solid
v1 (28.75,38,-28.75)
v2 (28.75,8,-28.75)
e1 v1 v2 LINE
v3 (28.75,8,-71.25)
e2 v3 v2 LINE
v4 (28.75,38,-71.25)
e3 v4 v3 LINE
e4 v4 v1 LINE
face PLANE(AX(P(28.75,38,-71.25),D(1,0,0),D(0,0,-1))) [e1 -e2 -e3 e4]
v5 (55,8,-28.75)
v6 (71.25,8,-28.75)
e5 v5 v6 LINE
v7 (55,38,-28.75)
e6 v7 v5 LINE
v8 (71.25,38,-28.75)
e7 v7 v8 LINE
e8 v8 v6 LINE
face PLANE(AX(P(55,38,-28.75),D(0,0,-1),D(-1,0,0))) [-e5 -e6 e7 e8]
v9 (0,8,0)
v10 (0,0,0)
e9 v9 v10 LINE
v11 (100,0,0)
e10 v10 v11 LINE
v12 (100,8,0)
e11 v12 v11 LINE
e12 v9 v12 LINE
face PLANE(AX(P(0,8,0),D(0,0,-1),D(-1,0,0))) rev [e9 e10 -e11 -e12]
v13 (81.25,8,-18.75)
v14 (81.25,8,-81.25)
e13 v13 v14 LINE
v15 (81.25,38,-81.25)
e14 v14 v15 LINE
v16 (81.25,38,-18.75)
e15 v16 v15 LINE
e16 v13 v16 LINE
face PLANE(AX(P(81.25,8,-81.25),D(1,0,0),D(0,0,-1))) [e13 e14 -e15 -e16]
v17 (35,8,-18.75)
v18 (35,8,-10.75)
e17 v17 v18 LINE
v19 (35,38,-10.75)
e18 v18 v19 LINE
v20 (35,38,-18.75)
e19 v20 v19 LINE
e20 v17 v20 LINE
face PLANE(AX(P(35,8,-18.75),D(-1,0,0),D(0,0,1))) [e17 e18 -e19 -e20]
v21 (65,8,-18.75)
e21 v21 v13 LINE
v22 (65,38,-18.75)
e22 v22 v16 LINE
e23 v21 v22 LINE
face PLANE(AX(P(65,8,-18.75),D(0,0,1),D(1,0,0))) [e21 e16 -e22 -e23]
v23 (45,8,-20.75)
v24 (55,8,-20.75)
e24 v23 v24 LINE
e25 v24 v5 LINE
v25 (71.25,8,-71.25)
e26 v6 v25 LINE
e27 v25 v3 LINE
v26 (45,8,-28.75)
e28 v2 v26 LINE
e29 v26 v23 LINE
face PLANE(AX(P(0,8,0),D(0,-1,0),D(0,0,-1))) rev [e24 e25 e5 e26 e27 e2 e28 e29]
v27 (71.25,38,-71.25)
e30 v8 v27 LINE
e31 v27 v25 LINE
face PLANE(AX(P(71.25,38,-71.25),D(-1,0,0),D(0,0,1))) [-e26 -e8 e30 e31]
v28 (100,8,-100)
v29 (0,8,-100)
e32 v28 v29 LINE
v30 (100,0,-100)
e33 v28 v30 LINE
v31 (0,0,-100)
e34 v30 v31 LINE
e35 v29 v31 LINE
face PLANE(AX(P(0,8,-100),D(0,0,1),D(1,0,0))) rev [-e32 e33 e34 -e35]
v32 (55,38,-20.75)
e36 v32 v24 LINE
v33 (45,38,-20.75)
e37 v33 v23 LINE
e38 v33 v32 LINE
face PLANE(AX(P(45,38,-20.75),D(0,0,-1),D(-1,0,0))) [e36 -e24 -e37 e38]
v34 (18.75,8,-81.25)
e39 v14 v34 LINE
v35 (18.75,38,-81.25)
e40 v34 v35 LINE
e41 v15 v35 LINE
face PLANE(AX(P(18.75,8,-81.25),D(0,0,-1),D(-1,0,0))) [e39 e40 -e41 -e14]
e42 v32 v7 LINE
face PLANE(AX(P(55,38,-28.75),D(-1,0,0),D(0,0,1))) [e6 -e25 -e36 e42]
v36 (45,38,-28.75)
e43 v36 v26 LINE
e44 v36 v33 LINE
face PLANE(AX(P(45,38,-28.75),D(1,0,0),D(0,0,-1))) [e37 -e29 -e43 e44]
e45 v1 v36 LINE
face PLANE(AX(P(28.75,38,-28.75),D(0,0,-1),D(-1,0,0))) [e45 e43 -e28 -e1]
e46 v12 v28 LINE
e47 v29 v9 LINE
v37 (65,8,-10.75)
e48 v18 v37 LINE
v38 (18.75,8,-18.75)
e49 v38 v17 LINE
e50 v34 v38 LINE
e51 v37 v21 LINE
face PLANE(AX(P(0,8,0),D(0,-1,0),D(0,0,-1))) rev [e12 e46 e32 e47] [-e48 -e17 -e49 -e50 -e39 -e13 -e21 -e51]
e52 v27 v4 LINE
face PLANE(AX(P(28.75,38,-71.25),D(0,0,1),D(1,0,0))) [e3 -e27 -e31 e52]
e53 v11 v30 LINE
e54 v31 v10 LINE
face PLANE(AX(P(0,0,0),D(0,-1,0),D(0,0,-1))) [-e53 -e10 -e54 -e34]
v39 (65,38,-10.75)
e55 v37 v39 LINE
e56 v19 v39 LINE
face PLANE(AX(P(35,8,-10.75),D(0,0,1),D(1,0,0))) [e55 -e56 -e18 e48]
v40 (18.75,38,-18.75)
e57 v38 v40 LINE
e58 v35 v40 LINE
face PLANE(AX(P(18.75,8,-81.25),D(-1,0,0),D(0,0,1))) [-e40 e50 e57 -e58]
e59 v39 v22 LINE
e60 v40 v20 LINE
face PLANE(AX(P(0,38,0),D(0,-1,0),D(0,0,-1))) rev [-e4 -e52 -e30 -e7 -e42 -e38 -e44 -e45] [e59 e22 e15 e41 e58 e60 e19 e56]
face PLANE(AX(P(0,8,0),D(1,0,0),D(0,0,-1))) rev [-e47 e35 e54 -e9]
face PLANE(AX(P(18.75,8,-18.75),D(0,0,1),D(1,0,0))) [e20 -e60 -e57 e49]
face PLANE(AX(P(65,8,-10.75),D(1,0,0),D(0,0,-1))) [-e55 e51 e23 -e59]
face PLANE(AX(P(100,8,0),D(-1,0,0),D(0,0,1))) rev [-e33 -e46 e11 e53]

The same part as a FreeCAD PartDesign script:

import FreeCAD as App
import Part
import Sketcher

V = App.Vector


def add_polygon(sketch, points):
    """Adds a closed chain of lines whose ends are joined by coincident constraints."""
    first, n = sketch.GeometryCount, len(points)
    for a, b in zip(points, points[1:] + points[:1]):
        sketch.addGeometry(Part.LineSegment(App.Vector(*a, 0), App.Vector(*b, 0)), False)
    for i in range(n):
        sketch.addConstraint(Sketcher.Constraint("Coincident", first + i, 2, first + (i + 1) % n, 1))

doc = App.newDocument("Part")
params = doc.addObject("Spreadsheet::Sheet", "Params")
for row, (alias, value) in enumerate([
    ("sketch1_width", "100 mm"),
    ("pad1_length", "8 mm"),
    ("sketch2_width", "100 mm"),
    ("sketch2_width2", "10 mm"),
    ("sketch2_height", "8 mm"),
    ("sketch2_width3", "42.5 mm"),
    ("pad2_length", "30 mm"),
    ("sketch3_width", "100 mm"),
    ("sketch3_width2", "30 mm"),
    ("sketch3_height", "8 mm"),
    ("sketch3_width3", "62.5 mm"),
    ("pocket1_length", "30 mm"),
], start=1):
    params.set(f"A{row}", alias)
    params.set(f"B{row}", "=" + value)
    params.setAlias(f"B{row}", alias)

body = doc.addObject("PartDesign::Body", "Body")

# Sketch on XZ plane
sketch1 = body.newObject("Sketcher::SketchObject", "Sketch")
sketch1.AttachmentSupport = (doc.getObject("XZ_Plane"), [""])
sketch1.MapMode = "FlatFace"
add_polygon(sketch1, [(0, -100), (0, 0), (100, 0), (100, -100)])  # lines 0-3
sketch1.addConstraint(Sketcher.Constraint("Vertical", 0))
sketch1.addConstraint(Sketcher.Constraint("Horizontal", 1))
sketch1.addConstraint(Sketcher.Constraint("Vertical", 2))
sketch1.addConstraint(Sketcher.Constraint("Horizontal", 3))
sketch1.addConstraint(Sketcher.Constraint("Coincident", 0, 2, -1, 1))
sketch1.addConstraint(Sketcher.Constraint("Equal", 3, 0))
sketch1.addConstraint(Sketcher.Constraint("DistanceX", 1, 1, 1, 2, 100.0))
sketch1.setExpression("Constraints[10]", "Params.sketch1_width")
pad1 = body.newObject("PartDesign::Pad", "Pad")
pad1.Profile = sketch1
pad1.setExpression("Length", "Params.pad1_length")
pad1.Reversed = True

# Sketch on XZ plane
sketch2 = body.newObject("Sketcher::SketchObject", "Sketch001")
sketch2.AttachmentSupport = (doc.getObject("XZ_Plane"), [""])
sketch2.MapMode = "FlatFace"
sketch2.AttachmentOffset = App.Placement(V(0, 0, -8), App.Rotation())
add_polygon(sketch2, [(0, -100), (0, 0), (100, 0), (100, -100)])  # lines 0-3
add_polygon(sketch2, [(71, -29), (55, -29), (55, -21), (45, -21), (45, -29), (29, -29), (29, -71), (71, -71)])  # lines 4-11
sketch2.addConstraint(Sketcher.Constraint("Vertical", 0))
sketch2.addConstraint(Sketcher.Constraint("Horizontal", 1))
sketch2.addConstraint(Sketcher.Constraint("Vertical", 2))
sketch2.addConstraint(Sketcher.Constraint("Horizontal", 3))
sketch2.addConstraint(Sketcher.Constraint("Horizontal", 4))
sketch2.addConstraint(Sketcher.Constraint("Vertical", 5))
sketch2.addConstraint(Sketcher.Constraint("Horizontal", 6))
sketch2.addConstraint(Sketcher.Constraint("Vertical", 7))
sketch2.addConstraint(Sketcher.Constraint("Horizontal", 8))
sketch2.addConstraint(Sketcher.Constraint("Vertical", 9))
sketch2.addConstraint(Sketcher.Constraint("Horizontal", 10))
sketch2.addConstraint(Sketcher.Constraint("Vertical", 11))
sketch2.addConstraint(Sketcher.Constraint("Coincident", 0, 2, -1, 1))
sketch2.addConstraint(Sketcher.Constraint("Horizontal", 4, 2, 7, 2))
sketch2.addConstraint(Sketcher.Constraint("Equal", 4, 8))
sketch2.addConstraint(Sketcher.Constraint("Equal", 3, 0))
sketch2.addConstraint(Sketcher.Constraint("Equal", 10, 9))
sketch2.addConstraint(Sketcher.Constraint("DistanceX", 1, 1, 1, 2, 100.0))
sketch2.addConstraint(Sketcher.Constraint("DistanceX", 6, 2, 6, 1, 10.0))
sketch2.addConstraint(Sketcher.Constraint("DistanceY", 5, 1, 5, 2, 8.0))
sketch2.addConstraint(Sketcher.Constraint("DistanceX", 10, 1, 10, 2, 42.5))
sketch2.addConstraint(Sketcher.Constraint("DistanceX", -1, 1, 4, 2, 55.0))
sketch2.addConstraint(Sketcher.Constraint("DistanceY", 4, 2, -1, 1, 28.75))
sketch2.setExpression("Constraints[29]", "Params.sketch2_width")
sketch2.setExpression("Constraints[30]", "Params.sketch2_width2")
sketch2.setExpression("Constraints[31]", "Params.sketch2_height")
sketch2.setExpression("Constraints[32]", "Params.sketch2_width3")
pad2 = body.newObject("PartDesign::Pad", "Pad001")
pad2.Profile = sketch2
pad2.setExpression("Length", "Params.pad2_length")
pad2.Reversed = True

# Sketch on XZ plane
sketch3 = body.newObject("Sketcher::SketchObject", "Sketch002")
sketch3.AttachmentSupport = (doc.getObject("XZ_Plane"), [""])
sketch3.MapMode = "FlatFace"
sketch3.AttachmentOffset = App.Placement(V(0, 0, -38), App.Rotation())
add_polygon(sketch3, [(0, -100), (0, 0), (100, 0), (100, -100)])  # lines 0-3
add_polygon(sketch3, [(19, -19), (19, -81), (81, -81), (81, -19), (65, -19), (65, -11), (35, -11), (35, -19)])  # lines 4-11
sketch3.addConstraint(Sketcher.Constraint("Vertical", 0))
sketch3.addConstraint(Sketcher.Constraint("Horizontal", 1))
sketch3.addConstraint(Sketcher.Constraint("Vertical", 2))
sketch3.addConstraint(Sketcher.Constraint("Horizontal", 3))
sketch3.addConstraint(Sketcher.Constraint("Vertical", 4))
sketch3.addConstraint(Sketcher.Constraint("Horizontal", 5))
sketch3.addConstraint(Sketcher.Constraint("Vertical", 6))
sketch3.addConstraint(Sketcher.Constraint("Horizontal", 7))
sketch3.addConstraint(Sketcher.Constraint("Vertical", 8))
sketch3.addConstraint(Sketcher.Constraint("Horizontal", 9))
sketch3.addConstraint(Sketcher.Constraint("Vertical", 10))
sketch3.addConstraint(Sketcher.Constraint("Horizontal", 11))
sketch3.addConstraint(Sketcher.Constraint("Coincident", 0, 2, -1, 1))
sketch3.addConstraint(Sketcher.Constraint("Horizontal", 7, 2, 10, 2))
sketch3.addConstraint(Sketcher.Constraint("Equal", 7, 11))
sketch3.addConstraint(Sketcher.Constraint("Equal", 3, 0))
sketch3.addConstraint(Sketcher.Constraint("Equal", 5, 4))
sketch3.addConstraint(Sketcher.Constraint("DistanceX", 1, 1, 1, 2, 100.0))
sketch3.addConstraint(Sketcher.Constraint("DistanceX", 9, 2, 9, 1, 30.0))
sketch3.addConstraint(Sketcher.Constraint("DistanceY", 8, 1, 8, 2, 8.0))
sketch3.addConstraint(Sketcher.Constraint("DistanceX", 5, 1, 5, 2, 62.5))
sketch3.addConstraint(Sketcher.Constraint("DistanceX", -1, 1, 7, 2, 65.0))
sketch3.addConstraint(Sketcher.Constraint("DistanceY", 4, 2, -1, 1, 81.25))
sketch3.setExpression("Constraints[29]", "Params.sketch3_width")
sketch3.setExpression("Constraints[30]", "Params.sketch3_width2")
sketch3.setExpression("Constraints[31]", "Params.sketch3_height")
sketch3.setExpression("Constraints[32]", "Params.sketch3_width3")
pocket1 = body.newObject("PartDesign::Pocket", "Pocket")
pocket1.Profile = sketch3
pocket1.setExpression("Length", "Params.pocket1_length")
pocket1.Reversed = True

doc.recompute()
